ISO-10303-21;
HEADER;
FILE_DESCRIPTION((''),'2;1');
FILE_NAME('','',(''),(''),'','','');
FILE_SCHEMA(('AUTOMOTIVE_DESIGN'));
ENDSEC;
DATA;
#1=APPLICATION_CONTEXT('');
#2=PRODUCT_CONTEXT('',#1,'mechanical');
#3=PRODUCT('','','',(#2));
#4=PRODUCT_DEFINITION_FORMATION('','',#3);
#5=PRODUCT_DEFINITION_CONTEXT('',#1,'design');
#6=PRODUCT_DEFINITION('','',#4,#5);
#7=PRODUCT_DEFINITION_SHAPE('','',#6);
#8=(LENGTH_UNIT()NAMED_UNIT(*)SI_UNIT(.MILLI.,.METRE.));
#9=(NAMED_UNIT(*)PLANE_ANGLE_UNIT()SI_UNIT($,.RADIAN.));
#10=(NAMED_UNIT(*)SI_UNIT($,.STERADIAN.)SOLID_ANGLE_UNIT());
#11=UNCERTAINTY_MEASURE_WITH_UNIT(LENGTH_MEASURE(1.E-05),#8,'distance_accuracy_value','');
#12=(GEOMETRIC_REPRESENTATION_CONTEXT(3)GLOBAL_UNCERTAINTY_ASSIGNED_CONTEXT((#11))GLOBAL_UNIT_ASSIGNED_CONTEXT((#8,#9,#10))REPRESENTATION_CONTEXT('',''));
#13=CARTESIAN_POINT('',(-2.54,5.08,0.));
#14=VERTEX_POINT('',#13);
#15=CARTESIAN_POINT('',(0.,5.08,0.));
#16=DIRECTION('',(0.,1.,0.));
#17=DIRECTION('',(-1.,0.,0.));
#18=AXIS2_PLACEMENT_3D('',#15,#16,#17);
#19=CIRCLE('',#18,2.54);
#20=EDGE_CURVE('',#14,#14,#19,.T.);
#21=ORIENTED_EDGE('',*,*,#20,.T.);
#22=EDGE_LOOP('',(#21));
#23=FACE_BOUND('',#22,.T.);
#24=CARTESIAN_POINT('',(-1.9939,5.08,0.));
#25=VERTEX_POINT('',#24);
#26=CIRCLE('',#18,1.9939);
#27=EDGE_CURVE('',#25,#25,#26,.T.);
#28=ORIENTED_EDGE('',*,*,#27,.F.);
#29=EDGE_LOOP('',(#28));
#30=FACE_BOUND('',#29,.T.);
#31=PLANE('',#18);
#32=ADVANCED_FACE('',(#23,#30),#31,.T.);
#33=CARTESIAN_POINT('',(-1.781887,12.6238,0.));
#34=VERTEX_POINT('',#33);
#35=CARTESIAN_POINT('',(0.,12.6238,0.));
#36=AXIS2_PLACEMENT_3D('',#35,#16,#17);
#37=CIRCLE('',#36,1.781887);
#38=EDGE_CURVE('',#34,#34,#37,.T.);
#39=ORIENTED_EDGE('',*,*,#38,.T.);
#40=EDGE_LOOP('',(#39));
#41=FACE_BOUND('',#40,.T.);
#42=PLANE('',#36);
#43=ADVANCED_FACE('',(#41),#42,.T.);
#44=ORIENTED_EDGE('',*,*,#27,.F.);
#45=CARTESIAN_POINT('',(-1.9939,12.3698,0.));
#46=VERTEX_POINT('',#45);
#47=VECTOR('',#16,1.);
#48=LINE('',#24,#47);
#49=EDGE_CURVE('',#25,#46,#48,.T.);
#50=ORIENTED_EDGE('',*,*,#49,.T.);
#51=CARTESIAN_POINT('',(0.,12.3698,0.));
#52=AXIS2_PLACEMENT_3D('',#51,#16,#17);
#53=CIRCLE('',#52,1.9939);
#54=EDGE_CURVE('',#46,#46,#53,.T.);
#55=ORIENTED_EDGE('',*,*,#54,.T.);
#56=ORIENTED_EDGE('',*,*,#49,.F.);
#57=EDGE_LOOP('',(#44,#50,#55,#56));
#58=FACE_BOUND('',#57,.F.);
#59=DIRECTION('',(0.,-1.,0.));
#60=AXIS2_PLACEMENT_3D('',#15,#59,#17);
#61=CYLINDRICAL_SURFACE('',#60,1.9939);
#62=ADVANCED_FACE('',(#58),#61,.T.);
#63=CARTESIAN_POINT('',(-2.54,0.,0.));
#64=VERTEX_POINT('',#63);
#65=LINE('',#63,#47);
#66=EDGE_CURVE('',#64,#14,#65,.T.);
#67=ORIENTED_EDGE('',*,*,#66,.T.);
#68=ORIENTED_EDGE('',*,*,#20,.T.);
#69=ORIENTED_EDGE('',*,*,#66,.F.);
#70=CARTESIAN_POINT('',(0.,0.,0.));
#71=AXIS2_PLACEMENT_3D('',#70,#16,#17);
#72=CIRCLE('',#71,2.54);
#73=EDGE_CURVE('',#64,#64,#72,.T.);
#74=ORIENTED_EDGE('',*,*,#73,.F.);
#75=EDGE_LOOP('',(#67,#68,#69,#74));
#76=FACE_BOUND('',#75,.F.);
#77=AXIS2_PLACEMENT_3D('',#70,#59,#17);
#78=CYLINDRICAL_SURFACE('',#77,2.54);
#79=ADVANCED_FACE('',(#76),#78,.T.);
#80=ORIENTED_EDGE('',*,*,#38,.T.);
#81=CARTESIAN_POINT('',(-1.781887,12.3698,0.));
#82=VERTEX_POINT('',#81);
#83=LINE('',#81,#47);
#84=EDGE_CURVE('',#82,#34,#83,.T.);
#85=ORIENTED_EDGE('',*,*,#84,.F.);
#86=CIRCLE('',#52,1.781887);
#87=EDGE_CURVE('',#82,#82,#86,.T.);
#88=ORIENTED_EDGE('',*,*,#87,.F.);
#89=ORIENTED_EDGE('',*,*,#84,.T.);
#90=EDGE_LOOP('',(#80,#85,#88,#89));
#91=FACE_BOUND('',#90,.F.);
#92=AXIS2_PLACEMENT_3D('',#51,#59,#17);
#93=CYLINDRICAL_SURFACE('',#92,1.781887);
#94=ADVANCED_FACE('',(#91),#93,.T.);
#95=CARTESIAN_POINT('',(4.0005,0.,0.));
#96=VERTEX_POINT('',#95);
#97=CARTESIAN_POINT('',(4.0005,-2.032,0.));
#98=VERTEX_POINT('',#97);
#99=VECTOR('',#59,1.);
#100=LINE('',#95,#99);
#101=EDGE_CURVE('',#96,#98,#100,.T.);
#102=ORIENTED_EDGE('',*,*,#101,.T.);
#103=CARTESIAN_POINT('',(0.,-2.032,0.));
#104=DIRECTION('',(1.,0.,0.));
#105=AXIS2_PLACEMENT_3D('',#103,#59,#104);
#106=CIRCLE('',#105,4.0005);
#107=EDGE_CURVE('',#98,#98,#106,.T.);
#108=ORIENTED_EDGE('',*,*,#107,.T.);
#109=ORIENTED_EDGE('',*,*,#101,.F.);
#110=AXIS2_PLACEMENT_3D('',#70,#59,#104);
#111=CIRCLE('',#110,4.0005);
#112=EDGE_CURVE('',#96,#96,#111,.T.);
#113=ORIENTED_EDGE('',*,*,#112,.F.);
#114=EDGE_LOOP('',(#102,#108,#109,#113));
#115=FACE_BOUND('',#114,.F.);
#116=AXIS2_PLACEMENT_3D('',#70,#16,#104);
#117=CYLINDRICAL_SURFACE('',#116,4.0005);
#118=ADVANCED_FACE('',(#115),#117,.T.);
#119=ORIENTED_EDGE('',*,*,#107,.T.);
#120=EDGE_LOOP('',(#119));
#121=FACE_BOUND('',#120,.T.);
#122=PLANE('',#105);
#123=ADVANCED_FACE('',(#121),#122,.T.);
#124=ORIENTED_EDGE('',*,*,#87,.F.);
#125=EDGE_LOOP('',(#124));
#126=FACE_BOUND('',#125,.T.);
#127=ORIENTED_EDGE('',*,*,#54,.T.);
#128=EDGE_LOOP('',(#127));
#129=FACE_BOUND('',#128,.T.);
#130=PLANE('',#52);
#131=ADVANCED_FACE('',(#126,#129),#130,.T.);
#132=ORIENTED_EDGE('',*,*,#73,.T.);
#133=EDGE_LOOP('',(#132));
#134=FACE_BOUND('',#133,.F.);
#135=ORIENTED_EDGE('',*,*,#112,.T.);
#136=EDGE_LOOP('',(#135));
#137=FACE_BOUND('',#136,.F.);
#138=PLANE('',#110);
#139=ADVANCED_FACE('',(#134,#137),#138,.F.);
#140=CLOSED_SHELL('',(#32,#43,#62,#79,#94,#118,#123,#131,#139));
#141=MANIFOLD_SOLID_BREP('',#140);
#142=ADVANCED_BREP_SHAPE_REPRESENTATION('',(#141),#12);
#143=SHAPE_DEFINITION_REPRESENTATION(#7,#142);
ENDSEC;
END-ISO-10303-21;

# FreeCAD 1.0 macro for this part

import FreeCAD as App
import Part
import Sketcher
Q = App.Units.Quantity

doc = App.newDocument("Part")
body = doc.addObject("PartDesign::Body", "Body")

sketch1 = doc.addObject("Sketcher::SketchObject", "Sketch")
body.addObject(sketch1)
sketch1.AttachmentSupport = (doc.XZ_Plane, [""])
sketch1.MapMode = "FlatFace"
sketch1.addGeometry(Part.Circle(App.Vector(0, 0, 0), App.Vector(0, 0, 1), 4), False)
sketch1.addConstraint([
    Sketcher.Constraint("Coincident", 0, 3, -1, 1),
    Sketcher.Constraint("Diameter", 0, Q("0.315 in")),
])
pad1 = doc.addObject("PartDesign::Pad", "Pad")
body.addObject(pad1)
pad1.Profile = sketch1
pad1.Length = Q("0.08 in")

sketch2 = doc.addObject("Sketcher::SketchObject", "Sketch001")
body.addObject(sketch2)
sketch2.AttachmentSupport = (doc.XZ_Plane, [""])
sketch2.MapMode = "FlatFace"
sketch2.addGeometry(Part.Circle(App.Vector(0, 0, 0), App.Vector(0, 0, 1), 2.5), False)
sketch2.addConstraint([
    Sketcher.Constraint("Coincident", 0, 3, -1, 1),
    Sketcher.Constraint("Diameter", 0, Q("0.2 in")),
])
pad2 = doc.addObject("PartDesign::Pad", "Pad001")
body.addObject(pad2)
pad2.Profile = sketch2
pad2.Length = Q("0.2 in")
pad2.Reversed = True

sketch3 = doc.addObject("Sketcher::SketchObject", "Sketch002")
body.addObject(sketch3)
sketch3.AttachmentSupport = (doc.XZ_Plane, [""])
sketch3.MapMode = "FlatFace"
sketch3.AttachmentOffset = App.Placement(App.Vector(0, 0, -0.2 * 25.4), App.Rotation())
sketch3.addGeometry(Part.Circle(App.Vector(0, 0, 0), App.Vector(0, 0, 1), 2), False)
sketch3.addConstraint([
    Sketcher.Constraint("Coincident", 0, 3, -1, 1),
    Sketcher.Constraint("Diameter", 0, Q("0.157 in")),
])
pad3 = doc.addObject("PartDesign::Pad", "Pad002")
body.addObject(pad3)
pad3.Profile = sketch3
pad3.Length = Q("0.287 in")
pad3.Reversed = True

sketch4 = doc.addObject("Sketcher::SketchObject", "Sketch003")
body.addObject(sketch4)
sketch4.AttachmentSupport = (doc.XZ_Plane, [""])
sketch4.MapMode = "FlatFace"
sketch4.AttachmentOffset = App.Placement(App.Vector(0, 0, -0.487 * 25.4), App.Rotation())
sketch4.addGeometry(Part.Circle(App.Vector(0, 0, 0), App.Vector(0, 0, 1), 1.8), False)
sketch4.addConstraint([
    Sketcher.Constraint("Coincident", 0, 3, -1, 1),
    Sketcher.Constraint("Diameter", 0, 3.563774),
])
pad4 = doc.addObject("PartDesign::Pad", "Pad003")
body.addObject(pad4)
pad4.Profile = sketch4
pad4.Length = Q("0.01 in")
pad4.Reversed = True

doc.recompute()
